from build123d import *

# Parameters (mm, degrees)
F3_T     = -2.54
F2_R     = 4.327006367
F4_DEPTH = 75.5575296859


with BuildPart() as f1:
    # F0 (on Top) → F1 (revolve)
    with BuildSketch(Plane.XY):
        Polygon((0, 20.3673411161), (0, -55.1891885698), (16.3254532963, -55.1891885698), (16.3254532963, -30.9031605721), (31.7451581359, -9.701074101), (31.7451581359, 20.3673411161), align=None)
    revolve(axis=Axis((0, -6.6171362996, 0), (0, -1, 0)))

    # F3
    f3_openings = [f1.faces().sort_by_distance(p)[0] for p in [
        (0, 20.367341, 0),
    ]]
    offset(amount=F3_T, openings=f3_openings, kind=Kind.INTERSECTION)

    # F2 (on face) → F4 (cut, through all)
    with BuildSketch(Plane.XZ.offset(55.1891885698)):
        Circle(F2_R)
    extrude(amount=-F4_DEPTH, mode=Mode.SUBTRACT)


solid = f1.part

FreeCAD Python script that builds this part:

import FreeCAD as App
import Part
import Sketcher

V = App.Vector


def faces_at(feature, points):
    """Names of the faces that lie closest to the given points."""
    faces = feature.Shape.Faces
    near = lambda p: min(range(len(faces)), key=lambda i: faces[i].distToShape(Part.Vertex(*p))[0])
    return sorted({f"Face{near(p) + 1}" for p in points})


def add_polygon(sketch, points):
    """Adds a closed chain of lines whose ends are joined by coincident constraints."""
    first, n = sketch.GeometryCount, len(points)
    for a, b in zip(points, points[1:] + points[:1]):
        sketch.addGeometry(Part.LineSegment(App.Vector(*a, 0), App.Vector(*b, 0)), False)
    for i in range(n):
        sketch.addConstraint(Sketcher.Constraint("Coincident", first + i, 2, first + (i + 1) % n, 1))

doc = App.newDocument("Part")
params = doc.addObject("Spreadsheet::Sheet", "Params")
for row, (alias, value) in enumerate([
    ("revolution_angle", "360 deg"),
    ("thickness_wall", "0.1 in"),
], start=1):
    params.set(f"A{row}", alias)
    params.set(f"B{row}", "=" + value)
    params.setAlias(f"B{row}", alias)

body = doc.addObject("PartDesign::Body", "Body")

# Sketch on XY plane
sketch1 = body.newObject("Sketcher::SketchObject", "Sketch")
sketch1.AttachmentSupport = (doc.getObject("XY_Plane"), [""])
sketch1.MapMode = "FlatFace"
add_polygon(sketch1, [(0, 20), (0, -55), (16, -55), (16, -31), (32, -10), (32, 20)])  # lines 0-5
sketch1.addConstraint(Sketcher.Constraint("Vertical", 0))
sketch1.addConstraint(Sketcher.Constraint("Horizontal", 1))
sketch1.addConstraint(Sketcher.Constraint("Vertical", 2))
sketch1.addConstraint(Sketcher.Constraint("Vertical", 4))
sketch1.addConstraint(Sketcher.Constraint("Horizontal", 5))
sketch1.addConstraint(Sketcher.Constraint("PointOnObject", 0, 2, -2))
sketch1.addConstraint(Sketcher.Constraint("DistanceX", 5, 2, 5, 1, 31.745158))
sketch1.addConstraint(Sketcher.Constraint("DistanceY", 0, 2, 0, 1, 75.55653))
sketch1.addConstraint(Sketcher.Constraint("DistanceY", 2, 2, 4, 2, 51.270502))
sketch1.addConstraint(Sketcher.Constraint("DistanceX", 1, 1, 1, 2, 16.325453))
sketch1.addConstraint(Sketcher.Constraint("DistanceY", 4, 1, 4, 2, 30.068415))
sketch1.addConstraint(Sketcher.Constraint("DistanceY", 0, 2, -1, 1, 55.189189))
revolution = body.newObject("PartDesign::Revolution", "Revolution")
revolution.Profile = sketch1
revolution.ReferenceAxis = (sketch1, ["V_Axis"])
revolution.setExpression("Angle", "Params.revolution_angle")
doc.recompute()

thickness = body.newObject("PartDesign::Thickness", "Thickness")
thickness.Base = (revolution, faces_at(revolution, [(0, 20.367, 0)]))
thickness.setExpression("Value", "Params.thickness_wall")
thickness.Reversed = True
thickness.Join = "Intersection"

# Sketch on XZ plane
sketch2 = body.newObject("Sketcher::SketchObject", "Sketch001")
sketch2.AttachmentSupport = (doc.getObject("XZ_Plane"), [""])
sketch2.MapMode = "FlatFace"
sketch2.AttachmentOffset = App.Placement(V(0, 0, 55.189189), App.Rotation())
sketch2.addGeometry(Part.Circle(V(0, 0, 0), V(0, 0, 1), 4.3), False)
sketch2.addConstraint(Sketcher.Constraint("Coincident", 0, 3, -1, 1))
sketch2.addConstraint(Sketcher.Constraint("Diameter", 0, 8.654013))
pocket1 = body.newObject("PartDesign::Pocket", "Pocket")
pocket1.Profile = sketch2
pocket1.Type = "ThroughAll"

doc.recompute()
